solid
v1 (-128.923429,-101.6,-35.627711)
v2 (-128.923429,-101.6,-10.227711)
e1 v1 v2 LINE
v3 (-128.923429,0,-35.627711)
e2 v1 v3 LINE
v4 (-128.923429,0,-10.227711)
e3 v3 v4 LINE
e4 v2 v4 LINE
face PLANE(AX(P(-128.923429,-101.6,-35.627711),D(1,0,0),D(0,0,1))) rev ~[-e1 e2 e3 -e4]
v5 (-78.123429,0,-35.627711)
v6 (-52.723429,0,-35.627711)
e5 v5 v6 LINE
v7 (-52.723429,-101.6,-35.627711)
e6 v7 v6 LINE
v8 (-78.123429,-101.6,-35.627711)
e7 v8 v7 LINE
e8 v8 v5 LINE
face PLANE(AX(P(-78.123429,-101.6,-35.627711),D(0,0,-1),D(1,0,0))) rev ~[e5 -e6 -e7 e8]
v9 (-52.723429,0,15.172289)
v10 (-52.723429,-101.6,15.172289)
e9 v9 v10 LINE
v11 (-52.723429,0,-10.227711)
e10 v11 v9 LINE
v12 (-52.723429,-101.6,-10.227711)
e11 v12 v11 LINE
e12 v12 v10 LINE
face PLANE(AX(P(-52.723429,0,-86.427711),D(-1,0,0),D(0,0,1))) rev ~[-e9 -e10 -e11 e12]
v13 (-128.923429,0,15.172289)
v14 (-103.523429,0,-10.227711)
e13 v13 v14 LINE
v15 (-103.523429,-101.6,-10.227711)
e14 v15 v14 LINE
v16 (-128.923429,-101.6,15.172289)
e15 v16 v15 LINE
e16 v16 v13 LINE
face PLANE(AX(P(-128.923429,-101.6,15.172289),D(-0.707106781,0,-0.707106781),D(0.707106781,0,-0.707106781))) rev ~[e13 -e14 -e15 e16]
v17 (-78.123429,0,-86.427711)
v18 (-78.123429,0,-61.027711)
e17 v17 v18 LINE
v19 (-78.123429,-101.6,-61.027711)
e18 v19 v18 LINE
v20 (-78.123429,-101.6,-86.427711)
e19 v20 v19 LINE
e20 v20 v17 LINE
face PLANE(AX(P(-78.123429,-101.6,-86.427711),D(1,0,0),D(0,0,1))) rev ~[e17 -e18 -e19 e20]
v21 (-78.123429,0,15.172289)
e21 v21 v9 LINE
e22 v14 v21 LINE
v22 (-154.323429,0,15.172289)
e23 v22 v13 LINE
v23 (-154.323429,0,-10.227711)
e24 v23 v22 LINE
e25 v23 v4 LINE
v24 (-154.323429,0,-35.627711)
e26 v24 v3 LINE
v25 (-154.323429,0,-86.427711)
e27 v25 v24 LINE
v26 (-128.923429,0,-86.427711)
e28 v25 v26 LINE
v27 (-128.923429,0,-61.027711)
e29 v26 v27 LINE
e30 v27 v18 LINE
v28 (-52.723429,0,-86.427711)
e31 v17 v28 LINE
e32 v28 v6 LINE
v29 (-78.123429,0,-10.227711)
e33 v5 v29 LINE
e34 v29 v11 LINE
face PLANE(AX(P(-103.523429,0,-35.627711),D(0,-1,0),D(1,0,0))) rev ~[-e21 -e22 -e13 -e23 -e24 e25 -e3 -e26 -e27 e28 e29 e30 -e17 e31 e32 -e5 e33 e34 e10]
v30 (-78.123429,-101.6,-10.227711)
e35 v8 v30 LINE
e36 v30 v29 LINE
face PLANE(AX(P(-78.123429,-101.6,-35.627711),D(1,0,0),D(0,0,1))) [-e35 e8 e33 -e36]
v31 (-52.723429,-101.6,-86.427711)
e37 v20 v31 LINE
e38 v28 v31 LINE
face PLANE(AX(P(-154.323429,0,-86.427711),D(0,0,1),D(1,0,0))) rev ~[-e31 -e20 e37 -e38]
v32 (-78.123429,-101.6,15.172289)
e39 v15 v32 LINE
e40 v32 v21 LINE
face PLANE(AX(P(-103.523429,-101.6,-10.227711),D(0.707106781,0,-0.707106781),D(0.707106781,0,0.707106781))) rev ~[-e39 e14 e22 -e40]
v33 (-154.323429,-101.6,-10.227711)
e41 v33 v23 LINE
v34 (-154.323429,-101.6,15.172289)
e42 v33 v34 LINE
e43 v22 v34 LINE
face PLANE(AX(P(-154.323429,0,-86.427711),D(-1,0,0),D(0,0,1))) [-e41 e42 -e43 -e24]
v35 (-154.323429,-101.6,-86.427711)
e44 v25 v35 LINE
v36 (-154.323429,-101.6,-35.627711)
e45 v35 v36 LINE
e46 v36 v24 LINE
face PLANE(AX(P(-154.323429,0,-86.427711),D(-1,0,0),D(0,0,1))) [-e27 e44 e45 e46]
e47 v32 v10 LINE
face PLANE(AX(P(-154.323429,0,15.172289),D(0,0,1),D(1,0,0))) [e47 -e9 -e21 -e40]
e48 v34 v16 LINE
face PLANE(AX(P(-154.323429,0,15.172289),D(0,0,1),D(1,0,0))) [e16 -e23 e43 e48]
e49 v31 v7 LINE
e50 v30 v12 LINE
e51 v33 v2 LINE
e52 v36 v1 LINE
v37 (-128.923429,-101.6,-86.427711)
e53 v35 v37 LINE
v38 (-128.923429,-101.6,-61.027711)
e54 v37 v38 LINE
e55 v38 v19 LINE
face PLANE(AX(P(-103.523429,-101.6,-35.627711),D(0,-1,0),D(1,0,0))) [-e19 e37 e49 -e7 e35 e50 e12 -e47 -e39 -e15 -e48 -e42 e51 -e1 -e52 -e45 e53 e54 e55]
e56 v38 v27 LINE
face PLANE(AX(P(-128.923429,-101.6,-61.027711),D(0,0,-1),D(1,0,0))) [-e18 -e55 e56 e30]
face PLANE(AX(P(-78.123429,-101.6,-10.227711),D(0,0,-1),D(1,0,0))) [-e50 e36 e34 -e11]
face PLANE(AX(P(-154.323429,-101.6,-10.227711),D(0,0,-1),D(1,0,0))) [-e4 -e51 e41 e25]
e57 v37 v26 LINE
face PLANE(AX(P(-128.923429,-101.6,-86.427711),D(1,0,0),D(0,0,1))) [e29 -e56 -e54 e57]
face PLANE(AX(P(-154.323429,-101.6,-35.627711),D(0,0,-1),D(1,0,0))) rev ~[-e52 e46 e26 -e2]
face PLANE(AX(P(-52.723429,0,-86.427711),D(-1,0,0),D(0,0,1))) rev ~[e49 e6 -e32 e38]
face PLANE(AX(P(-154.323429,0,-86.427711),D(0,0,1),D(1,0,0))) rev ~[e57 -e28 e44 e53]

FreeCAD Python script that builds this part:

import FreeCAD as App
import Part
import Sketcher
from FreeCAD import Vector
Q = App.Units.Quantity

doc = App.newDocument("Part")
body = doc.addObject("PartDesign::Body", "Body")

sketch1 = body.newObject("Sketcher::SketchObject", "Sketch")
sketch1.AttachmentSupport = (doc.getObject("XZ_Plane"), [""])
sketch1.MapMode = "FlatFace"
sketch1.addGeometry([
    Part.LineSegment(Vector(-154, 15, 0), Vector(-154, -86, 0)),
    Part.LineSegment(Vector(-154, -86, 0), Vector(-53, -86, 0)),
    Part.LineSegment(Vector(-53, -86, 0), Vector(-53, 15, 0)),
    Part.LineSegment(Vector(-53, 15, 0), Vector(-154, 15, 0)),
], False)
sketch1.addConstraint([
    Sketcher.Constraint("Coincident", 0, 2, 1, 1),
    Sketcher.Constraint("Coincident", 1, 2, 2, 1),
    Sketcher.Constraint("Coincident", 2, 2, 3, 1),
    Sketcher.Constraint("Coincident", 3, 2, 0, 1),
    Sketcher.Constraint("Vertical", 0),
    Sketcher.Constraint("Horizontal", 1),
    Sketcher.Constraint("Vertical", 2),
    Sketcher.Constraint("Horizontal", 3),
    Sketcher.Constraint("Equal", 3, 0),
    Sketcher.Constraint("DistanceX", 1, 1, 1, 2, Q("4 in")),
    Sketcher.Constraint("DistanceX", 0, 2, -1, 1, Q("154.323429 mm")),
    Sketcher.Constraint("DistanceY", 0, 2, -1, 1, Q("86.427711 mm")),
])
pad1 = body.newObject("PartDesign::Pad", "Pad")
pad1.Profile = sketch1
pad1.Length = Q("4 in")

sketch2 = body.newObject("Sketcher::SketchObject", "Sketch001")
sketch2.AttachmentSupport = (doc.getObject("XZ_Plane"), [""])
sketch2.MapMode = "FlatFace"
sketch2.AttachmentOffset = App.Placement(Vector(0, 0, 4 * 25.4), App.Rotation())
sketch2.addGeometry([
    Part.LineSegment(Vector(-78, -10, 0), Vector(-78, -36, 0)),
    Part.LineSegment(Vector(-78, -36, 0), Vector(-53, -36, 0)),
    Part.LineSegment(Vector(-53, -36, 0), Vector(-53, -10, 0)),
    Part.LineSegment(Vector(-53, -10, 0), Vector(-78, -10, 0)),
    Part.LineSegment(Vector(-154, -10, 0), Vector(-154, -36, 0)),
    Part.LineSegment(Vector(-154, -36, 0), Vector(-129, -36, 0)),
    Part.LineSegment(Vector(-129, -36, 0), Vector(-129, -10, 0)),
    Part.LineSegment(Vector(-129, -10, 0), Vector(-154, -10, 0)),
], False)
sketch2.addConstraint([
    Sketcher.Constraint("Coincident", 0, 2, 1, 1),
    Sketcher.Constraint("Coincident", 1, 2, 2, 1),
    Sketcher.Constraint("Coincident", 2, 2, 3, 1),
    Sketcher.Constraint("Coincident", 3, 2, 0, 1),
    Sketcher.Constraint("Coincident", 4, 2, 5, 1),
    Sketcher.Constraint("Coincident", 5, 2, 6, 1),
    Sketcher.Constraint("Coincident", 6, 2, 7, 1),
    Sketcher.Constraint("Coincident", 7, 2, 4, 1),
    Sketcher.Constraint("Vertical", 0),
    Sketcher.Constraint("Horizontal", 1),
    Sketcher.Constraint("Vertical", 2),
    Sketcher.Constraint("Horizontal", 3),
    Sketcher.Constraint("Vertical", 4),
    Sketcher.Constraint("Horizontal", 5),
    Sketcher.Constraint("Vertical", 6),
    Sketcher.Constraint("Horizontal", 7),
    Sketcher.Constraint("Horizontal", 1, 2, 4, 2),
    Sketcher.Constraint("Horizontal", 3, 2, 6, 2),
    Sketcher.Constraint("Equal", 3, 5),
    Sketcher.Constraint("Equal", 7, 0),
    Sketcher.Constraint("DistanceX", 1, 1, 1, 2, Q("1 in")),
    Sketcher.Constraint("DistanceX", 4, 2, 0, 2, Q("3 in")),
    Sketcher.Constraint("DistanceX", 0, 2, -1, 1, Q("78.123429 mm")),
    Sketcher.Constraint("DistanceY", 0, 2, -1, 1, Q("35.627711 mm")),
])
pocket1 = body.newObject("PartDesign::Pocket", "Pocket")
pocket1.Profile = sketch2
pocket1.Length = Q("4 in")

sketch3 = body.newObject("Sketcher::SketchObject", "Sketch002")
sketch3.AttachmentSupport = (doc.getObject("XZ_Plane"), [""])
sketch3.MapMode = "FlatFace"
sketch3.AttachmentOffset = App.Placement(Vector(0, 0, 4 * 25.4), App.Rotation())
sketch3.addGeometry([
    Part.LineSegment(Vector(-129, 15, 0), Vector(-104, -10, 0)),
    Part.LineSegment(Vector(-104, -10, 0), Vector(-78, 15, 0)),
    Part.LineSegment(Vector(-78, 15, 0), Vector(-129, 15, 0)),
], False)
sketch3.addConstraint([
    Sketcher.Constraint("Coincident", 0, 2, 1, 1),
    Sketcher.Constraint("Coincident", 1, 2, 2, 1),
    Sketcher.Constraint("Coincident", 2, 2, 0, 1),
    Sketcher.Constraint("Horizontal", 2),
    Sketcher.Constraint("Perpendicular", 0, 1),
    Sketcher.Constraint("Equal", 0, 1),
    Sketcher.Constraint("DistanceX", 2, 2, 2, 1, Q("2 in")),
    Sketcher.Constraint("DistanceX", 0, 2, -1, 1, Q("103.523429 mm")),
    Sketcher.Constraint("DistanceY", 0, 2, -1, 1, Q("10.227711 mm")),
])
pocket2 = body.newObject("PartDesign::Pocket", "Pocket001")
pocket2.Profile = sketch3
pocket2.Length = Q("4 in")

sketch4 = body.newObject("Sketcher::SketchObject", "Sketch003")
sketch4.AttachmentSupport = (doc.getObject("XZ_Plane"), [""])
sketch4.MapMode = "FlatFace"
sketch4.AttachmentOffset = App.Placement(Vector(0, 0, 4 * 25.4), App.Rotation())
sketch4.addGeometry([
    Part.LineSegment(Vector(-129, -61, 0), Vector(-129, -86, 0)),
    Part.LineSegment(Vector(-129, -86, 0), Vector(-78, -86, 0)),
    Part.LineSegment(Vector(-78, -86, 0), Vector(-78, -61, 0)),
    Part.LineSegment(Vector(-78, -61, 0), Vector(-129, -61, 0)),
], False)
sketch4.addConstraint([
    Sketcher.Constraint("Coincident", 0, 2, 1, 1),
    Sketcher.Constraint("Coincident", 1, 2, 2, 1),
    Sketcher.Constraint("Coincident", 2, 2, 3, 1),
    Sketcher.Constraint("Coincident", 3, 2, 0, 1),
    Sketcher.Constraint("Vertical", 0),
    Sketcher.Constraint("Horizontal", 1),
    Sketcher.Constraint("Vertical", 2),
    Sketcher.Constraint("Horizontal", 3),
    Sketcher.Constraint("DistanceX", 1, 1, 1, 2, Q("2 in")),
    Sketcher.Constraint("DistanceY", 0, 2, 0, 1, Q("1 in")),
    Sketcher.Constraint("DistanceX", 0, 2, -1, 1, Q("128.923429 mm")),
    Sketcher.Constraint("DistanceY", 0, 2, -1, 1, Q("86.427711 mm")),
])
pocket3 = body.newObject("PartDesign::Pocket", "Pocket002")
pocket3.Profile = sketch4
pocket3.Length = Q("4 in")

doc.recompute()
